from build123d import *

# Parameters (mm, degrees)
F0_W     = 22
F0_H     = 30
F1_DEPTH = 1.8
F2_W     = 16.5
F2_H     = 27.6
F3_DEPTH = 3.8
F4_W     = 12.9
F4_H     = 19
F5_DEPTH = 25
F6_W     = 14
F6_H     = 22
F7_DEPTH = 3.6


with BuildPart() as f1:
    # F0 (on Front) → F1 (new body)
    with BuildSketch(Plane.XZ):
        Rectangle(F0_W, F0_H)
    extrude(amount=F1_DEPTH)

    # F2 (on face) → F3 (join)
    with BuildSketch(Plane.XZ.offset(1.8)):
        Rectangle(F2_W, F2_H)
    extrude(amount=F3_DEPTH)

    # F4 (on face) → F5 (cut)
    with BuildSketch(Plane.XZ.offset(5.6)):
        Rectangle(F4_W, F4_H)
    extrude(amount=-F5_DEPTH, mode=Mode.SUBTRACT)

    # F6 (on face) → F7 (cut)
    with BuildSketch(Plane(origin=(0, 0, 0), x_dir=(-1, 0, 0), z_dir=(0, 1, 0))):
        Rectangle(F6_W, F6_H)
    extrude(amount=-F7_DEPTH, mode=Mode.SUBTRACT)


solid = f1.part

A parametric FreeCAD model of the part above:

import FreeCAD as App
import Part
import Sketcher

V = App.Vector
Q = App.Units.Quantity

doc = App.newDocument("Part")
body = doc.addObject("PartDesign::Body", "Body")

# Sketch on XZ plane
sketch1 = doc.addObject("Sketcher::SketchObject", "Sketch")
body.addObject(sketch1)
sketch1.AttachmentSupport = (doc.XZ_Plane, [""])
sketch1.MapMode = "FlatFace"
sketch1.addGeometry(Part.LineSegment(V(-11, 15, 0), V(-11, -15, 0)), False)
sketch1.addGeometry(Part.LineSegment(V(-11, -15, 0), V(11, -15, 0)), False)
sketch1.addGeometry(Part.LineSegment(V(11, -15, 0), V(11, 15, 0)), False)
sketch1.addGeometry(Part.LineSegment(V(11, 15, 0), V(-11, 15, 0)), False)
sketch1.addConstraint(Sketcher.Constraint("Coincident", 0, 2, 1, 1))
sketch1.addConstraint(Sketcher.Constraint("Coincident", 1, 2, 2, 1))
sketch1.addConstraint(Sketcher.Constraint("Coincident", 2, 2, 3, 1))
sketch1.addConstraint(Sketcher.Constraint("Coincident", 3, 2, 0, 1))
sketch1.addConstraint(Sketcher.Constraint("Vertical", 0))
sketch1.addConstraint(Sketcher.Constraint("Horizontal", 1))
sketch1.addConstraint(Sketcher.Constraint("Vertical", 2))
sketch1.addConstraint(Sketcher.Constraint("Horizontal", 3))
sketch1.addConstraint(Sketcher.Constraint("Symmetric", 0, 2, 2, 2, -1, 1))
sketch1.addConstraint(Sketcher.Constraint("DistanceX", 1, 1, 1, 2, Q("22 mm")))
sketch1.addConstraint(Sketcher.Constraint("DistanceY", 0, 2, 0, 1, Q("30 mm")))
pad1 = doc.addObject("PartDesign::Pad", "Pad")
body.addObject(pad1)
pad1.Profile = sketch1
pad1.Length = 1.8

# Sketch on XZ plane
sketch2 = doc.addObject("Sketcher::SketchObject", "Sketch001")
body.addObject(sketch2)
sketch2.AttachmentSupport = (doc.XZ_Plane, [""])
sketch2.MapMode = "FlatFace"
sketch2.AttachmentOffset = App.Placement(V(0, 0, 1.8), App.Rotation())
sketch2.addGeometry(Part.LineSegment(V(-8, 14, 0), V(-8, -14, 0)), False)
sketch2.addGeometry(Part.LineSegment(V(-8, -14, 0), V(8, -14, 0)), False)
sketch2.addGeometry(Part.LineSegment(V(8, -14, 0), V(8, 14, 0)), False)
sketch2.addGeometry(Part.LineSegment(V(8, 14, 0), V(-8, 14, 0)), False)
sketch2.addConstraint(Sketcher.Constraint("Coincident", 0, 2, 1, 1))
sketch2.addConstraint(Sketcher.Constraint("Coincident", 1, 2, 2, 1))
sketch2.addConstraint(Sketcher.Constraint("Coincident", 2, 2, 3, 1))
sketch2.addConstraint(Sketcher.Constraint("Coincident", 3, 2, 0, 1))
sketch2.addConstraint(Sketcher.Constraint("Vertical", 0))
sketch2.addConstraint(Sketcher.Constraint("Horizontal", 1))
sketch2.addConstraint(Sketcher.Constraint("Vertical", 2))
sketch2.addConstraint(Sketcher.Constraint("Horizontal", 3))
sketch2.addConstraint(Sketcher.Constraint("Symmetric", 0, 2, 2, 2, -1, 1))
sketch2.addConstraint(Sketcher.Constraint("DistanceX", 1, 1, 1, 2, Q("16.5 mm")))
sketch2.addConstraint(Sketcher.Constraint("DistanceY", 0, 2, 0, 1, Q("27.6 mm")))
pad2 = doc.addObject("PartDesign::Pad", "Pad001")
body.addObject(pad2)
pad2.Profile = sketch2
pad2.Length = 3.8

# Sketch on XZ plane
sketch3 = doc.addObject("Sketcher::SketchObject", "Sketch002")
body.addObject(sketch3)
sketch3.AttachmentSupport = (doc.XZ_Plane, [""])
sketch3.MapMode = "FlatFace"
sketch3.AttachmentOffset = App.Placement(V(0, 0, 5.6), App.Rotation())
sketch3.addGeometry(Part.LineSegment(V(-6, 10, 0), V(-6, -10, 0)), False)
sketch3.addGeometry(Part.LineSegment(V(-6, -10, 0), V(6, -10, 0)), False)
sketch3.addGeometry(Part.LineSegment(V(6, -10, 0), V(6, 10, 0)), False)
sketch3.addGeometry(Part.LineSegment(V(6, 10, 0), V(-6, 10, 0)), False)
sketch3.addConstraint(Sketcher.Constraint("Coincident", 0, 2, 1, 1))
sketch3.addConstraint(Sketcher.Constraint("Coincident", 1, 2, 2, 1))
sketch3.addConstraint(Sketcher.Constraint("Coincident", 2, 2, 3, 1))
sketch3.addConstraint(Sketcher.Constraint("Coincident", 3, 2, 0, 1))
sketch3.addConstraint(Sketcher.Constraint("Vertical", 0))
sketch3.addConstraint(Sketcher.Constraint("Horizontal", 1))
sketch3.addConstraint(Sketcher.Constraint("Vertical", 2))
sketch3.addConstraint(Sketcher.Constraint("Horizontal", 3))
sketch3.addConstraint(Sketcher.Constraint("Symmetric", 0, 2, 2, 2, -1, 1))
sketch3.addConstraint(Sketcher.Constraint("DistanceY", 0, 2, 0, 1, Q("19 mm")))
sketch3.addConstraint(Sketcher.Constraint("DistanceX", 1, 1, 1, 2, Q("12.9 mm")))
pocket1 = doc.addObject("PartDesign::Pocket", "Pocket")
body.addObject(pocket1)
pocket1.Profile = sketch3
pocket1.Length = 25

# Sketch on XZ plane
sketch4 = doc.addObject("Sketcher::SketchObject", "Sketch003")
body.addObject(sketch4)
sketch4.AttachmentSupport = (doc.XZ_Plane, [""])
sketch4.MapMode = "FlatFace"
sketch4.addGeometry(Part.LineSegment(V(7, 11, 0), V(7, -11, 0)), False)
sketch4.addGeometry(Part.LineSegment(V(7, -11, 0), V(-7, -11, 0)), False)
sketch4.addGeometry(Part.LineSegment(V(-7, -11, 0), V(-7, 11, 0)), False)
sketch4.addGeometry(Part.LineSegment(V(-7, 11, 0), V(7, 11, 0)), False)
sketch4.addConstraint(Sketcher.Constraint("Coincident", 0, 2, 1, 1))
sketch4.addConstraint(Sketcher.Constraint("Coincident", 1, 2, 2, 1))
sketch4.addConstraint(Sketcher.Constraint("Coincident", 2, 2, 3, 1))
sketch4.addConstraint(Sketcher.Constraint("Coincident", 3, 2, 0, 1))
sketch4.addConstraint(Sketcher.Constraint("Vertical", 0))
sketch4.addConstraint(Sketcher.Constraint("Horizontal", 1))
sketch4.addConstraint(Sketcher.Constraint("Vertical", 2))
sketch4.addConstraint(Sketcher.Constraint("Horizontal", 3))
sketch4.addConstraint(Sketcher.Constraint("Symmetric", 0, 2, 2, 2, -1, 1))
sketch4.addConstraint(Sketcher.Constraint("DistanceX", 1, 2, 1, 1, Q("14 mm")))
sketch4.addConstraint(Sketcher.Constraint("DistanceY", 0, 2, 0, 1, Q("22 mm")))
pocket2 = doc.addObject("PartDesign::Pocket", "Pocket001")
body.addObject(pocket2)
pocket2.Profile = sketch4
pocket2.Length = 3.6
pocket2.Reversed = True

doc.recompute()
